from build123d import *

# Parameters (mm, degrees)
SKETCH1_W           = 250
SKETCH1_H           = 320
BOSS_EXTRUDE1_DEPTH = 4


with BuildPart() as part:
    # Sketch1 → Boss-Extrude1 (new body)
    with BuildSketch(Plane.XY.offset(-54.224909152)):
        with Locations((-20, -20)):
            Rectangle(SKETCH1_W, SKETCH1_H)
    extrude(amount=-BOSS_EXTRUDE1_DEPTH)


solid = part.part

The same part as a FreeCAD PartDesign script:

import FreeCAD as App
import Part
import Sketcher
Q = App.Units.Quantity


def add_polygon(sketch, points):
    """Adds a closed chain of lines whose ends are joined by coincident constraints."""
    first, n = sketch.GeometryCount, len(points)
    for a, b in zip(points, points[1:] + points[:1]):
        sketch.addGeometry(Part.LineSegment(App.Vector(*a, 0), App.Vector(*b, 0)), False)
    for i in range(n):
        sketch.addConstraint(Sketcher.Constraint("Coincident", first + i, 2, first + (i + 1) % n, 1))

doc = App.newDocument("Part")
params = doc.addObject("Spreadsheet::Sheet", "Params")
for row, (alias, value) in enumerate([
    ("sketch1_width", "250 mm"),
    ("sketch1_height", "320 mm"),
    ("pad1_length", "4 mm"),
], start=1):
    params.set(f"A{row}", alias)
    params.set(f"B{row}", "=" + value)
    params.setAlias(f"B{row}", alias)

body = doc.addObject("PartDesign::Body", "Body")

# Sketch on XY plane
sketch1 = body.newObject("Sketcher::SketchObject", "Sketch")
sketch1.AttachmentSupport = (doc.getObject("XY_Plane"), [""])
sketch1.MapMode = "FlatFace"
sketch1.AttachmentOffset = App.Placement(App.Vector(0, 0, -54.224909), App.Rotation())
add_polygon(sketch1, [(-145, 140), (-145, -180), (105, -180), (105, 140)])  # lines 0-3
sketch1.addConstraint([
    Sketcher.Constraint("Vertical", 0),
    Sketcher.Constraint("Horizontal", 1),
    Sketcher.Constraint("Vertical", 2),
    Sketcher.Constraint("Horizontal", 3),
    Sketcher.Constraint("DistanceX", 1, 1, 1, 2, Q("250 mm")),
    Sketcher.Constraint("DistanceY", 0, 2, 0, 1, Q("320 mm")),
    Sketcher.Constraint("DistanceX", 0, 2, -1, 1, Q("145 mm")),
    Sketcher.Constraint("DistanceY", 0, 2, -1, 1, Q("180 mm")),
])
sketch1.setExpression("Constraints[8]", "Params.sketch1_width")
sketch1.setExpression("Constraints[9]", "Params.sketch1_height")
pad1 = body.newObject("PartDesign::Pad", "Pad")
pad1.Profile = sketch1
pad1.setExpression("Length", "Params.pad1_length")
pad1.Reversed = True

doc.recompute()
